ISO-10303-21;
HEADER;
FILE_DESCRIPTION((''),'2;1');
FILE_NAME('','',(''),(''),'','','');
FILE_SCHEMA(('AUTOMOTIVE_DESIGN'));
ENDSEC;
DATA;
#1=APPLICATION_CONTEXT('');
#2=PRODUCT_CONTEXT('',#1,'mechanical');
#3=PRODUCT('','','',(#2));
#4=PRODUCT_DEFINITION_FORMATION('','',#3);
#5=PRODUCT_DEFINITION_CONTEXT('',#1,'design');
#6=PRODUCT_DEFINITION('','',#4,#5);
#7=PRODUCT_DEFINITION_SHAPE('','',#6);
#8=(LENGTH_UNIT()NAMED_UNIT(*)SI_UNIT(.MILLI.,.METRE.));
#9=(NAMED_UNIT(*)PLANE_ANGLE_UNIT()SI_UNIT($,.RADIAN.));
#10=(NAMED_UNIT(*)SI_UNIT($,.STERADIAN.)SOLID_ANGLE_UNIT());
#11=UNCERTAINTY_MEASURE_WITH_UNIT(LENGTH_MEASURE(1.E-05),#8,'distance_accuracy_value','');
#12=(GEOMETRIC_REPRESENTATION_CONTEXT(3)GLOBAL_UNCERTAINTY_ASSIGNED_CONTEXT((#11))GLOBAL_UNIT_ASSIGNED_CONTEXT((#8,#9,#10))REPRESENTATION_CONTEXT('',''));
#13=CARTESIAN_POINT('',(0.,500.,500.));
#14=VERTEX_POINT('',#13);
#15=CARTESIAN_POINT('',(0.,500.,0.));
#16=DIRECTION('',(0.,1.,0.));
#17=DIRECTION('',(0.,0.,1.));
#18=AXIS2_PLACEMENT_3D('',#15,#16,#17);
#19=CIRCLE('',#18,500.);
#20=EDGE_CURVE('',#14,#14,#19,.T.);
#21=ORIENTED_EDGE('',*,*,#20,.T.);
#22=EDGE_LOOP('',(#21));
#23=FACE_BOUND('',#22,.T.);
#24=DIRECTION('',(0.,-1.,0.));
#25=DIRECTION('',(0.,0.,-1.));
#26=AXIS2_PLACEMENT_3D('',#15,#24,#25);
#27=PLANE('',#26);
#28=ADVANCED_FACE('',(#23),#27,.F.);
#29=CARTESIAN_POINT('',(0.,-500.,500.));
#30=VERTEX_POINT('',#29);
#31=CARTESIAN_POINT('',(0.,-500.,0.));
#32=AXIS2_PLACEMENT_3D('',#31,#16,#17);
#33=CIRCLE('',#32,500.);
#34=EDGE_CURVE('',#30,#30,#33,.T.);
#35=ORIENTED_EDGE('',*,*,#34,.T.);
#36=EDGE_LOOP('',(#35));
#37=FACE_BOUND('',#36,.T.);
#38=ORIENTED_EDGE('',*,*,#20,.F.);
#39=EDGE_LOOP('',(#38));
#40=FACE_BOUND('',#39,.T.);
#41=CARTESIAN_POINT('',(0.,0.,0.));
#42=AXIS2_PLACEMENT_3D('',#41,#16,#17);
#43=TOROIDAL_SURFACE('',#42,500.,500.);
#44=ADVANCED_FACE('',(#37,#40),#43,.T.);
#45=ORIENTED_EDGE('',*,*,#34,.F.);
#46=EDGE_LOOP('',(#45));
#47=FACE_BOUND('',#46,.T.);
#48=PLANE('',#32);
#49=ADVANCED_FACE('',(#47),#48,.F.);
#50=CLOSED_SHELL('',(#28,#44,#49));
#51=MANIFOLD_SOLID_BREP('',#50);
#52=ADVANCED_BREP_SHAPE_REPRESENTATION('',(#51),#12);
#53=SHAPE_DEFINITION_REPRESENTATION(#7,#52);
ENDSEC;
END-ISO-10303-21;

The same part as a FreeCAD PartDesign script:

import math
import FreeCAD as App
import Part
import Sketcher

V = App.Vector
Q = App.Units.Quantity

doc = App.newDocument("Part")
body = doc.addObject("PartDesign::Body", "Body")

# Sketch on XY plane
sketch1 = doc.addObject("Sketcher::SketchObject", "Sketch")
body.addObject(sketch1)
sketch1.AttachmentSupport = (doc.XY_Plane, [""])
sketch1.MapMode = "FlatFace"
sketch1.addGeometry([
    Part.LineSegment(V(0, 500, 0), V(0, -500, 0)),
    Part.LineSegment(V(0, -500, 0), V(500, -500, 0)),
    Part.ArcOfCircle(Part.Circle(V(500, 0, 0), V(0, 0, 1), 500), math.radians(-90), math.radians(90)),
    Part.LineSegment(V(500, 500, 0), V(0, 500, 0)),
], False)
sketch1.addConstraint([
    Sketcher.Constraint("Coincident", 0, 2, 1, 1),
    Sketcher.Constraint("Tangent", 1, 2, 2, 1),
    Sketcher.Constraint("Tangent", 2, 2, 3, 1),
    Sketcher.Constraint("Coincident", 3, 2, 0, 1),
    Sketcher.Constraint("Vertical", 0),
    Sketcher.Constraint("Horizontal", 1),
    Sketcher.Constraint("Horizontal", 3),
    Sketcher.Constraint("Symmetric", 0, 2, 3, 2, -1, 1),
    Sketcher.Constraint("Radius", 2, Q("500 mm")),
    Sketcher.Constraint("DistanceX", 1, 1, 1, 2, Q("500 mm")),
])
revolution = doc.addObject("PartDesign::Revolution", "Revolution")
body.addObject(revolution)
revolution.Profile = sketch1
revolution.ReferenceAxis = (sketch1, ["V_Axis"])
revolution.Angle = 360

doc.recompute()
